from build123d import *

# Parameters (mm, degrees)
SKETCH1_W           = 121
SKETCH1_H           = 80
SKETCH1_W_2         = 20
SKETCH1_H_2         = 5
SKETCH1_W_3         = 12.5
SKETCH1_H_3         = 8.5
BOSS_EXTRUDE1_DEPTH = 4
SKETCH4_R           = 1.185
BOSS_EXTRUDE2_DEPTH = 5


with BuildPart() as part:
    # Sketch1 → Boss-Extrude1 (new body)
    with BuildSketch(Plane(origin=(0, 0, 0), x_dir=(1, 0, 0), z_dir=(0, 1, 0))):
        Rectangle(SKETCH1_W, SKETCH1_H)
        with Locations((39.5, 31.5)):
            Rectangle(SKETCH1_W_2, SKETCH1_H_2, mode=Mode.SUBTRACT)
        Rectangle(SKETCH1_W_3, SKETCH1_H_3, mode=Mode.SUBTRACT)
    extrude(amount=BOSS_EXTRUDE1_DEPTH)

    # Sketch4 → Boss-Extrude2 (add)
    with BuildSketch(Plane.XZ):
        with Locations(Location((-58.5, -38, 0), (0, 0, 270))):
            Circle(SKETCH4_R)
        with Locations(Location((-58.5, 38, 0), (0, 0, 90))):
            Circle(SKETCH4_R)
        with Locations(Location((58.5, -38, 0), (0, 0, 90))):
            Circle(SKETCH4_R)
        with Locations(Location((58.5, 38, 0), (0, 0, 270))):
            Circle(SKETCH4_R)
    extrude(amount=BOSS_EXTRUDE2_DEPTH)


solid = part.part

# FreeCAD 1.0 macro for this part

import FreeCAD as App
import Part
import Sketcher
from FreeCAD import Vector


def add_polygon(sketch, points):
    """Adds a closed chain of lines whose ends are joined by coincident constraints."""
    first, n = sketch.GeometryCount, len(points)
    for a, b in zip(points, points[1:] + points[:1]):
        sketch.addGeometry(Part.LineSegment(App.Vector(*a, 0), App.Vector(*b, 0)), False)
    for i in range(n):
        sketch.addConstraint(Sketcher.Constraint("Coincident", first + i, 2, first + (i + 1) % n, 1))

doc = App.newDocument("Part")
body = doc.addObject("PartDesign::Body", "Body")

# Sketch on XZ plane
sketch1 = doc.addObject("Sketcher::SketchObject", "Sketch")
body.addObject(sketch1)
sketch1.AttachmentSupport = (doc.XZ_Plane, [""])
sketch1.MapMode = "FlatFace"
add_polygon(sketch1, [(-60.5, -40), (-60.5, 40), (60.5, 40), (60.5, -40)])  # lines 0-3
add_polygon(sketch1, [(6.25, 4.25), (-6.25, 4.25), (-6.25, -4.25), (6.25, -4.25)])  # lines 4-7
add_polygon(sketch1, [(49.5, -29), (29.5, -29), (29.5, -34), (49.5, -34)])  # lines 8-11
sketch1.addConstraint(Sketcher.Constraint("Vertical", 0))
sketch1.addConstraint(Sketcher.Constraint("Horizontal", 1))
sketch1.addConstraint(Sketcher.Constraint("Vertical", 2))
sketch1.addConstraint(Sketcher.Constraint("Horizontal", 3))
sketch1.addConstraint(Sketcher.Constraint("Horizontal", 4))
sketch1.addConstraint(Sketcher.Constraint("Vertical", 5))
sketch1.addConstraint(Sketcher.Constraint("Horizontal", 6))
sketch1.addConstraint(Sketcher.Constraint("Vertical", 7))
sketch1.addConstraint(Sketcher.Constraint("Horizontal", 8))
sketch1.addConstraint(Sketcher.Constraint("Vertical", 9))
sketch1.addConstraint(Sketcher.Constraint("Horizontal", 10))
sketch1.addConstraint(Sketcher.Constraint("Vertical", 11))
sketch1.addConstraint(Sketcher.Constraint("Symmetric", 0, 2, 2, 2, -1, 1))
sketch1.addConstraint(Sketcher.Constraint("Symmetric", 4, 2, 6, 2, -1, 1))
sketch1.addConstraint(Sketcher.Constraint("DistanceX", 1, 1, 1, 2, 121.0))
sketch1.addConstraint(Sketcher.Constraint("DistanceX", 8, 2, 8, 1, 20.0))
sketch1.addConstraint(Sketcher.Constraint("DistanceY", 0, 1, 0, 2, 80.0))
sketch1.addConstraint(Sketcher.Constraint("DistanceY", 9, 2, 9, 1, 5.0))
sketch1.addConstraint(Sketcher.Constraint("DistanceX", 4, 2, 4, 1, 12.5))
sketch1.addConstraint(Sketcher.Constraint("DistanceY", 5, 2, 5, 1, 8.5))
sketch1.addConstraint(Sketcher.Constraint("DistanceY", 8, 2, -1, 1, 29.0))
sketch1.addConstraint(Sketcher.Constraint("DistanceX", 8, 2, 2, 2, 31.0))
pad1 = doc.addObject("PartDesign::Pad", "Pad")
body.addObject(pad1)
pad1.Profile = sketch1
pad1.Length = 4
pad1.Reversed = True

# Sketch on XZ plane
sketch2 = doc.addObject("Sketcher::SketchObject", "Sketch001")
body.addObject(sketch2)
sketch2.AttachmentSupport = (doc.XZ_Plane, [""])
sketch2.MapMode = "FlatFace"
sketch2.addGeometry(Part.Circle(Vector(-58.5, -38, 0), Vector(0, 0, 1), 1.185), False)
sketch2.addGeometry(Part.Circle(Vector(-58.5, 38, 0), Vector(0, 0, 1), 1.185), False)
sketch2.addGeometry(Part.Circle(Vector(58.5, -38, 0), Vector(0, 0, 1), 1.185), False)
sketch2.addGeometry(Part.Circle(Vector(58.5, 38, 0), Vector(0, 0, 1), 1.185), False)
sketch2.addConstraint(Sketcher.Constraint("Equal", 0, 1))
sketch2.addConstraint(Sketcher.Constraint("Equal", 1, 2))
sketch2.addConstraint(Sketcher.Constraint("Equal", 2, 3))
sketch2.addConstraint(Sketcher.Constraint("Symmetric", 1, 3, 2, 3, -1, 1))
sketch2.addConstraint(Sketcher.Constraint("Symmetric", 0, 3, 3, 3, -1, 1))
sketch2.addConstraint(Sketcher.Constraint("Symmetric", 0, 3, 2, 3, -2))
sketch2.addConstraint(Sketcher.Constraint("Diameter", 0, 2.37))
sketch2.addConstraint(Sketcher.Constraint("DistanceY", 0, 3, -1, 1, 38.0))
sketch2.addConstraint(Sketcher.Constraint("DistanceX", 0, 3, 2, 3, 117.0))
pad2 = doc.addObject("PartDesign::Pad", "Pad001")
body.addObject(pad2)
pad2.Profile = sketch2
pad2.Length = 5

doc.recompute()
